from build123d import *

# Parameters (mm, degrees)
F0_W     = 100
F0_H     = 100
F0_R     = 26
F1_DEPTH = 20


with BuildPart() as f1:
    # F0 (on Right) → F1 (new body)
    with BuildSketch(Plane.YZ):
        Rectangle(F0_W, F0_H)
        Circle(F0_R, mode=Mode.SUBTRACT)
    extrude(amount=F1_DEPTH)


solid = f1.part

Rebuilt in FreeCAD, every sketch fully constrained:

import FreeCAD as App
import Part
import Sketcher
Q = App.Units.Quantity


def add_polygon(sketch, points):
    """Adds a closed chain of lines whose ends are joined by coincident constraints."""
    first, n = sketch.GeometryCount, len(points)
    for a, b in zip(points, points[1:] + points[:1]):
        sketch.addGeometry(Part.LineSegment(App.Vector(*a, 0), App.Vector(*b, 0)), False)
    for i in range(n):
        sketch.addConstraint(Sketcher.Constraint("Coincident", first + i, 2, first + (i + 1) % n, 1))

doc = App.newDocument("Part")
params = doc.addObject("Spreadsheet::Sheet", "Params")
for row, (alias, value) in enumerate([
    ("sketch1_diameter", "52 mm"),
    ("sketch1_width", "100 mm"),
    ("pad1_length", "20 mm"),
], start=1):
    params.set(f"A{row}", alias)
    params.set(f"B{row}", "=" + value)
    params.setAlias(f"B{row}", alias)

body = doc.addObject("PartDesign::Body", "Body")

sketch1 = doc.addObject("Sketcher::SketchObject", "Sketch")
body.addObject(sketch1)
sketch1.AttachmentSupport = (doc.YZ_Plane, [""])
sketch1.MapMode = "FlatFace"
add_polygon(sketch1, [(-50, 50), (-50, -50), (50, -50), (50, 50)])
sketch1.addGeometry(Part.Circle(App.Vector(0, 0, 0), App.Vector(0, 0, 1), 26), False)
sketch1.addConstraint([
    Sketcher.Constraint("Vertical", 0),
    Sketcher.Constraint("Horizontal", 1),
    Sketcher.Constraint("Vertical", 2),
    Sketcher.Constraint("Horizontal", 3),
    Sketcher.Constraint("Coincident", 4, 3, -1, 1),
    Sketcher.Constraint("Symmetric", 0, 2, 2, 2, -1, 1),
    Sketcher.Constraint("Equal", 3, 0),
    Sketcher.Constraint("Diameter", 4, Q("52 mm")),
    Sketcher.Constraint("DistanceX", 1, 1, 1, 2, Q("100 mm")),
])
sketch1.setExpression("Constraints[11]", "Params.sketch1_diameter")
sketch1.setExpression("Constraints[12]", "Params.sketch1_width")
pad1 = doc.addObject("PartDesign::Pad", "Pad")
body.addObject(pad1)
pad1.Profile = sketch1
pad1.setExpression("Length", "Params.pad1_length")

doc.recompute()
